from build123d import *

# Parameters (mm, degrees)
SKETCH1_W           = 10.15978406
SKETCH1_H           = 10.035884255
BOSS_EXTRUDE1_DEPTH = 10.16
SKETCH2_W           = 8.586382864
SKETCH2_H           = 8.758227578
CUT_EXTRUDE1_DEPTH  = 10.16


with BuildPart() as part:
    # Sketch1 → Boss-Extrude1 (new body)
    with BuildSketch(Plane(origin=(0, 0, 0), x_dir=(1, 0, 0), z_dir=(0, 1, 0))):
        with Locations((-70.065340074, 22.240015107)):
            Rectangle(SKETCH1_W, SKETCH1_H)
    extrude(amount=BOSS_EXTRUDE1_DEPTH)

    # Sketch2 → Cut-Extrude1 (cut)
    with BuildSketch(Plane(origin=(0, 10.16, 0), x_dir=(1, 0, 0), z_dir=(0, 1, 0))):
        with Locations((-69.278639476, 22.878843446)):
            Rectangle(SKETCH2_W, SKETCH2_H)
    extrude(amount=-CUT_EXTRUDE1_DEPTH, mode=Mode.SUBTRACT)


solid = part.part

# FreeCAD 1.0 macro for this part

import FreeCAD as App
import Part
import Sketcher
Q = App.Units.Quantity

doc = App.newDocument("Part")
params = doc.addObject("Spreadsheet::Sheet", "Params")
for row, (alias, value) in enumerate([
    ("pad1_length", "0.4 in"),
    ("pocket1_length", "0.4 in"),
], start=1):
    params.set(f"A{row}", alias)
    params.set(f"B{row}", "=" + value)
    params.setAlias(f"B{row}", alias)

body = doc.addObject("PartDesign::Body", "Body")

# Sketch on XZ plane
sketch1 = body.newObject("Sketcher::SketchObject", "Sketch")
sketch1.AttachmentSupport = (doc.getObject("XZ_Plane"), [""])
sketch1.MapMode = "FlatFace"
sketch1.addGeometry([
    Part.LineSegment(App.Vector(-75.145232, -27.257957, 0), App.Vector(-75.145232, -17.222073, 0)),
    Part.LineSegment(App.Vector(-75.145232, -17.222073, 0), App.Vector(-64.985448, -17.222073, 0)),
    Part.LineSegment(App.Vector(-64.985448, -17.222073, 0), App.Vector(-64.985448, -27.257957, 0)),
    Part.LineSegment(App.Vector(-64.985448, -27.257957, 0), App.Vector(-75.145232, -27.257957, 0)),
], False)
sketch1.addConstraint([
    Sketcher.Constraint("Coincident", 0, 2, 1, 1),
    Sketcher.Constraint("Coincident", 1, 2, 2, 1),
    Sketcher.Constraint("Coincident", 2, 2, 3, 1),
    Sketcher.Constraint("Coincident", 3, 2, 0, 1),
    Sketcher.Constraint("Vertical", 0),
    Sketcher.Constraint("Horizontal", 1),
    Sketcher.Constraint("Vertical", 2),
    Sketcher.Constraint("Horizontal", 3),
    Sketcher.Constraint("DistanceX", 1, 1, 1, 2, Q("10.159784 mm")),
    Sketcher.Constraint("DistanceY", 0, 1, 0, 2, Q("10.035884 mm")),
    Sketcher.Constraint("DistanceX", 1, 2, -1, 1, Q("64.985448 mm")),
    Sketcher.Constraint("DistanceY", 0, 2, -1, 1, Q("17.222073 mm")),
])
pad1 = body.newObject("PartDesign::Pad", "Pad")
pad1.Profile = sketch1
pad1.setExpression("Length", "Params.pad1_length")
pad1.Reversed = True

# Sketch on XZ plane
sketch2 = body.newObject("Sketcher::SketchObject", "Sketch001")
sketch2.AttachmentSupport = (doc.getObject("XZ_Plane"), [""])
sketch2.MapMode = "FlatFace"
sketch2.AttachmentOffset = App.Placement(App.Vector(0, 0, -0.4 * 25.4), App.Rotation())
sketch2.addGeometry([
    Part.LineSegment(App.Vector(-73.571831, -27.257957, 0), App.Vector(-73.571831, -18.49973, 0)),
    Part.LineSegment(App.Vector(-73.571831, -18.49973, 0), App.Vector(-64.985448, -18.49973, 0)),
    Part.LineSegment(App.Vector(-64.985448, -18.49973, 0), App.Vector(-64.985448, -27.257957, 0)),
    Part.LineSegment(App.Vector(-64.985448, -27.257957, 0), App.Vector(-73.571831, -27.257957, 0)),
], False)
sketch2.addConstraint([
    Sketcher.Constraint("Coincident", 0, 2, 1, 1),
    Sketcher.Constraint("Coincident", 1, 2, 2, 1),
    Sketcher.Constraint("Coincident", 2, 2, 3, 1),
    Sketcher.Constraint("Coincident", 3, 2, 0, 1),
    Sketcher.Constraint("Vertical", 0),
    Sketcher.Constraint("Horizontal", 1),
    Sketcher.Constraint("Vertical", 2),
    Sketcher.Constraint("Horizontal", 3),
    Sketcher.Constraint("DistanceX", 1, 1, 1, 2, Q("8.586383 mm")),
    Sketcher.Constraint("DistanceY", 0, 1, 0, 2, Q("8.758228 mm")),
    Sketcher.Constraint("DistanceX", 0, 2, -1, 1, Q("73.571831 mm")),
    Sketcher.Constraint("DistanceY", 0, 2, -1, 1, Q("18.49973 mm")),
])
pocket1 = body.newObject("PartDesign::Pocket", "Pocket")
pocket1.Profile = sketch2
pocket1.setExpression("Length", "Params.pocket1_length")
pocket1.Reversed = True

doc.recompute()
